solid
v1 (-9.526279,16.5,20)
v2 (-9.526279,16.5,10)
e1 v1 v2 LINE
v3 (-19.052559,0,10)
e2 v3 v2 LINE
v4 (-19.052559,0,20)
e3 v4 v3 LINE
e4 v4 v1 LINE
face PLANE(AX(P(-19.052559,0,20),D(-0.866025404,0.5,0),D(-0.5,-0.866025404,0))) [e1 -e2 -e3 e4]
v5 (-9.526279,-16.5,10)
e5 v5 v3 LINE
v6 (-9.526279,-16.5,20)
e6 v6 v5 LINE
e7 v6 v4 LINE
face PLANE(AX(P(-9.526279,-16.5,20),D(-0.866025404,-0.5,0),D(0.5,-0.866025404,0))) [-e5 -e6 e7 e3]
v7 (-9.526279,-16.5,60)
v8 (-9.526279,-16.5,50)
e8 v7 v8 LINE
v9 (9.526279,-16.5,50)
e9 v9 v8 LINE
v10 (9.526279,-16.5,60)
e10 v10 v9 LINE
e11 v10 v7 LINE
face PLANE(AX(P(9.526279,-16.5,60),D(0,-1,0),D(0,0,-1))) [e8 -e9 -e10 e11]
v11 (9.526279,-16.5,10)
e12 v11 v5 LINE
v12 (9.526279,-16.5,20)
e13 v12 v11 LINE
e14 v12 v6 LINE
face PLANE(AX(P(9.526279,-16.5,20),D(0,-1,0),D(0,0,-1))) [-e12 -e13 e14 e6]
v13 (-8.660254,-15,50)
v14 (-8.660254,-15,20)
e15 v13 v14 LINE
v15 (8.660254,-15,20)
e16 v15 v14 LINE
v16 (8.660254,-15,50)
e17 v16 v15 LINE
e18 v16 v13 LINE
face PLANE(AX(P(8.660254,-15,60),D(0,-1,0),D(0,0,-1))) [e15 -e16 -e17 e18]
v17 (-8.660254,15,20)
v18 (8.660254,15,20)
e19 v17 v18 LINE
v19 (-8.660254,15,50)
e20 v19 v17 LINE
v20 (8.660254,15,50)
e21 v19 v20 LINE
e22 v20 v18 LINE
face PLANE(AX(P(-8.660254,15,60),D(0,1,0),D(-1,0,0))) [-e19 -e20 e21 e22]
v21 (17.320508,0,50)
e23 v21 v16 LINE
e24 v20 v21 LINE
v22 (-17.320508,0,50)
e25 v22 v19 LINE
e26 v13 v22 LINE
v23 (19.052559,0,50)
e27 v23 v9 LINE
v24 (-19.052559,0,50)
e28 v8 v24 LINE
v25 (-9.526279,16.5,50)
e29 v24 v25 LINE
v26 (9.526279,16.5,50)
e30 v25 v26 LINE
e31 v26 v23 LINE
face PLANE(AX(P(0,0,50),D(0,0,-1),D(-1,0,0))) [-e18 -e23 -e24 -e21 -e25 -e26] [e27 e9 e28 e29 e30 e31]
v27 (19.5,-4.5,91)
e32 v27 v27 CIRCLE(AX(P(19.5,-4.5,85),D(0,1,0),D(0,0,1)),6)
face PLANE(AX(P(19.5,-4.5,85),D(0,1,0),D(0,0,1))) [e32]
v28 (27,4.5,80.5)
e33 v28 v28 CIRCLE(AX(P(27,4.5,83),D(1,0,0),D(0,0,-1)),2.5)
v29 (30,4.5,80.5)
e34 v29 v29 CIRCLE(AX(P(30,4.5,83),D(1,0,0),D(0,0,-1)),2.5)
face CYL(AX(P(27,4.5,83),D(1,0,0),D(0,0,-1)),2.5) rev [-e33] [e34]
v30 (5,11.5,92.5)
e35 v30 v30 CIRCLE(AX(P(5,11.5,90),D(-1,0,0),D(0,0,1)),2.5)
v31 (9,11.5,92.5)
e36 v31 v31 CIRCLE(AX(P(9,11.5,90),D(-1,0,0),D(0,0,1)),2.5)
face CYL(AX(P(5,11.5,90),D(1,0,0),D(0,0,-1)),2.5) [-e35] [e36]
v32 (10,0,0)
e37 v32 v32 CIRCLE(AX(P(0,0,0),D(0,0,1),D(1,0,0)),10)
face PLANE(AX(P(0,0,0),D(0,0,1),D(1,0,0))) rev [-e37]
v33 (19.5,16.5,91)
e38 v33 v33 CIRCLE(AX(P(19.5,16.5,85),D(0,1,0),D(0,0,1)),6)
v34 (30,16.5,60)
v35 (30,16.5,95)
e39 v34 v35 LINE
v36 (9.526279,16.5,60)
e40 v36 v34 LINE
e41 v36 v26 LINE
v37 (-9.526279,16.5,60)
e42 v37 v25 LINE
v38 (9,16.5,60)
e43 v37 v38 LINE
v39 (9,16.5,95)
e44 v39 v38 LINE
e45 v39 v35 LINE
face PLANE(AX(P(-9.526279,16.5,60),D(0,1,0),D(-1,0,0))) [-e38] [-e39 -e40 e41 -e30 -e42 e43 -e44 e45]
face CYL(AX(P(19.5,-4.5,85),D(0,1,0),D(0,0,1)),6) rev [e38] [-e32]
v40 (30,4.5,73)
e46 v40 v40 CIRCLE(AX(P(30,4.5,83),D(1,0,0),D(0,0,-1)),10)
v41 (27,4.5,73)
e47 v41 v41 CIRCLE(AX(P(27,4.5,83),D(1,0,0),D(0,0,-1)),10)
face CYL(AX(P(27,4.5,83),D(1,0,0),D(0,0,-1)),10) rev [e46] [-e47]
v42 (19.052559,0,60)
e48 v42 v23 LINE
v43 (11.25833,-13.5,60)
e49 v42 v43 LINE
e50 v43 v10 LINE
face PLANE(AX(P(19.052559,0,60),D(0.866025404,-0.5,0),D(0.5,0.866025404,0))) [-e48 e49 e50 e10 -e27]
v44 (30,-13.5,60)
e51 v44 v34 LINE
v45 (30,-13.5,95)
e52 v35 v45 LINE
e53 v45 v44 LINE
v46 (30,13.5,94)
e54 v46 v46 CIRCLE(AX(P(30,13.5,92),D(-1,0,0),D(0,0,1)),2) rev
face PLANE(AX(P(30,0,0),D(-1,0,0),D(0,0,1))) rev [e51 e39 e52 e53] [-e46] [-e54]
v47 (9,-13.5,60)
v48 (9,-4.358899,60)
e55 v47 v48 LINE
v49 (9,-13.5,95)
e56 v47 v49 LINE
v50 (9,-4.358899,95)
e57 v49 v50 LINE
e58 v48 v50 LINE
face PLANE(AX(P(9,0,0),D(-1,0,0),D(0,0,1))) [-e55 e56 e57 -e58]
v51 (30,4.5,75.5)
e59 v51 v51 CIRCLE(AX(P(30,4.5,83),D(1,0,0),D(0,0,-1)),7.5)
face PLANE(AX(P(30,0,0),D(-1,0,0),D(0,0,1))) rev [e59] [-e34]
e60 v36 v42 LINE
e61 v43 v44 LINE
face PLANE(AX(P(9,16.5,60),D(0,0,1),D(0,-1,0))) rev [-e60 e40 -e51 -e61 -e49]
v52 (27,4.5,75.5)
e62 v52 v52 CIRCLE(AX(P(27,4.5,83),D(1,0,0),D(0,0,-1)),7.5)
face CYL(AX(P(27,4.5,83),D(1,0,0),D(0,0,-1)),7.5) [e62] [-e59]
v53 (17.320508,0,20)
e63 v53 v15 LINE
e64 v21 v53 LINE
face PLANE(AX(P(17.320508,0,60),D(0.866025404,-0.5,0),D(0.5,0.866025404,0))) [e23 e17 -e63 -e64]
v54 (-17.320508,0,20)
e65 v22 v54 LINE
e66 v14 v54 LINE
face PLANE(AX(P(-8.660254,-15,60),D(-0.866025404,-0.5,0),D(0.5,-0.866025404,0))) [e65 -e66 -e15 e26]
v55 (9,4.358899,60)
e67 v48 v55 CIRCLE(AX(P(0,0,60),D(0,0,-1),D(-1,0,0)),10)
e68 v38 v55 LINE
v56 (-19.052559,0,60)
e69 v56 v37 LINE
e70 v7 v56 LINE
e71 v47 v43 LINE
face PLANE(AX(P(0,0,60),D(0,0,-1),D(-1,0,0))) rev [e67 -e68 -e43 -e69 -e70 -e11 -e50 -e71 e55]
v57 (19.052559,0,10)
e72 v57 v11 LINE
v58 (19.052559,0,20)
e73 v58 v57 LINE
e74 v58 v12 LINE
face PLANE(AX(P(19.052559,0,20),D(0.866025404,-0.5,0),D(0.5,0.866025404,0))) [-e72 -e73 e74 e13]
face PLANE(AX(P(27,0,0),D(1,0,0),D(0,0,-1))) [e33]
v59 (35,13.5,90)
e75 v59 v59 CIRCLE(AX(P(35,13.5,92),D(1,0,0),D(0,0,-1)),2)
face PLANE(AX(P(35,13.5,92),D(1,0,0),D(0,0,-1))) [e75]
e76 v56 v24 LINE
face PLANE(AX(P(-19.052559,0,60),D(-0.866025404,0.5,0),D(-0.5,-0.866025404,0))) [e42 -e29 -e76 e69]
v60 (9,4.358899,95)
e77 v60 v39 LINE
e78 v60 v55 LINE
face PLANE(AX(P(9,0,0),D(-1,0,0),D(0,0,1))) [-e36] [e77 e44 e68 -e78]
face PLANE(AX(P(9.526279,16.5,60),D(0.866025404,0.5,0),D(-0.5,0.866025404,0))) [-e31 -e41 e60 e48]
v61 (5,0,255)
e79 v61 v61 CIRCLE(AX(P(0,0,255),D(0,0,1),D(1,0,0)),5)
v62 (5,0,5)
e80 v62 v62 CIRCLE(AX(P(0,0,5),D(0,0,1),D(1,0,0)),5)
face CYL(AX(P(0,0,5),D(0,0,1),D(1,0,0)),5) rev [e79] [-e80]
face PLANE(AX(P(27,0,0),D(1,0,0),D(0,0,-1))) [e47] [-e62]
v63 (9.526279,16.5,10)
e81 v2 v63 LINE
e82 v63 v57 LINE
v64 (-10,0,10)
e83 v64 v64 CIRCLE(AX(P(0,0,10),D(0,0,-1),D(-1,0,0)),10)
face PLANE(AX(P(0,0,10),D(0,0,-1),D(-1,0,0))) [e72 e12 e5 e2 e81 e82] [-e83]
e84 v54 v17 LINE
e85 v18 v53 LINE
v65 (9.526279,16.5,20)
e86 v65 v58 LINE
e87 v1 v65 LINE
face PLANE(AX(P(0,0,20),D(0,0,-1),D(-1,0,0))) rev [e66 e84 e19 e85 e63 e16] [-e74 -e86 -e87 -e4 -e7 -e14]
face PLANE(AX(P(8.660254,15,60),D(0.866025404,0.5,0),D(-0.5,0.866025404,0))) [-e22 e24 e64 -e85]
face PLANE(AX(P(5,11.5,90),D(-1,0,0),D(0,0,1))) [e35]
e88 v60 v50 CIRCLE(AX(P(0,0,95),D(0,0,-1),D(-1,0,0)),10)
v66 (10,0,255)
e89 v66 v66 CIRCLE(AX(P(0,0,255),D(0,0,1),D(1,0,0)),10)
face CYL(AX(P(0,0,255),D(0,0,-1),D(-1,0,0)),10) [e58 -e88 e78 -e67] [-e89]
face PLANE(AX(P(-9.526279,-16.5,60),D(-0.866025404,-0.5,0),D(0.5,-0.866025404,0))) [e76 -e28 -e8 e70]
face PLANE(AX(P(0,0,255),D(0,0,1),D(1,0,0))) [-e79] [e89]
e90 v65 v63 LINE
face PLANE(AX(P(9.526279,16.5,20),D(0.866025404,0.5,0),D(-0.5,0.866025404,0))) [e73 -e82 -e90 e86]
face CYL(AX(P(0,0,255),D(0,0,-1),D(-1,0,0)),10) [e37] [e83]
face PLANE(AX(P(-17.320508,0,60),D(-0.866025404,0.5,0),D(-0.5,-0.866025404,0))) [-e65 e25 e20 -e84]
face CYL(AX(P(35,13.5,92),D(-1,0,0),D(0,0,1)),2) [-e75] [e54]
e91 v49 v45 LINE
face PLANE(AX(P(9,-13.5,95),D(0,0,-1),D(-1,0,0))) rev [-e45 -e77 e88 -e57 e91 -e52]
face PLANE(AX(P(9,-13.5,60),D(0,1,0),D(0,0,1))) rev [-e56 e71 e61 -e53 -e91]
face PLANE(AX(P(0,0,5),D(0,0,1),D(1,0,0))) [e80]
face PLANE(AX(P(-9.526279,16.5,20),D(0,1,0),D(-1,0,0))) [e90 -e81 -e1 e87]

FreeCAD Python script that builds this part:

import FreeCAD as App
import Part
import Sketcher
Q = App.Units.Quantity


def add_polygon(sketch, points):
    """Adds a closed chain of lines whose ends are joined by coincident constraints."""
    first, n = sketch.GeometryCount, len(points)
    for a, b in zip(points, points[1:] + points[:1]):
        sketch.addGeometry(Part.LineSegment(App.Vector(*a, 0), App.Vector(*b, 0)), False)
    for i in range(n):
        sketch.addConstraint(Sketcher.Constraint("Coincident", first + i, 2, first + (i + 1) % n, 1))

doc = App.newDocument("Part")
body = doc.addObject("PartDesign::Body", "Body")

# Sketch on XY plane
sketch1 = body.newObject("Sketcher::SketchObject", "Sketch")
sketch1.AttachmentSupport = (doc.getObject("XY_Plane"), [""])
sketch1.MapMode = "FlatFace"
sketch1.addGeometry(Part.Circle(App.Vector(0, 0, 0), App.Vector(0, 0, 1), 10), False)
sketch1.addConstraint([
    Sketcher.Constraint("Coincident", 0, 3, -1, 1),
    Sketcher.Constraint("Diameter", 0, Q("20 mm")),
])
pad1 = body.newObject("PartDesign::Pad", "Pad")
pad1.Profile = sketch1
pad1.Length = 255

# Sketch on XY plane
sketch2 = body.newObject("Sketcher::SketchObject", "Sketch001")
sketch2.AttachmentSupport = (doc.getObject("XY_Plane"), [""])
sketch2.MapMode = "FlatFace"
sketch2.AttachmentOffset = App.Placement(App.Vector(0, 0, 255), App.Rotation())
sketch2.addGeometry(Part.Circle(App.Vector(0, 0, 0), App.Vector(0, 0, 1), 5), False)
sketch2.addConstraint([
    Sketcher.Constraint("Coincident", 0, 3, -1, 1),
    Sketcher.Constraint("Diameter", 0, Q("10 mm")),
])
pocket1 = body.newObject("PartDesign::Pocket", "Pocket")
pocket1.Profile = sketch2
pocket1.Length = 250

# Sketch on XY plane
sketch3 = body.newObject("Sketcher::SketchObject", "Sketch002")
sketch3.AttachmentSupport = (doc.getObject("XY_Plane"), [""])
sketch3.MapMode = "FlatFace"
sketch3.AttachmentOffset = App.Placement(App.Vector(0, 0, 10), App.Rotation())
add_polygon(sketch3, [(-17, 0), (-9, 15), (9, 15), (17, 0), (9, -15), (-9, -15)])  # lines 0-5
sketch3.addGeometry(Part.Circle(App.Vector(0, 0, 0), App.Vector(0, 0, 1), 10), False)  # 6
sketch3.addConstraint([
    Sketcher.Constraint("Horizontal", 1),
    Sketcher.Constraint("Horizontal", 4),
    Sketcher.Constraint("Coincident", 6, 3, -1, 1),
    Sketcher.Constraint("Symmetric", 0, 2, 3, 2, -1, 1),
    Sketcher.Constraint("Symmetric", 2, 2, 5, 2, -1, 1),
    Sketcher.Constraint("PointOnObject", 2, 2, -1),
    Sketcher.Constraint("Parallel", 2, 5),
    Sketcher.Constraint("Vertical", 1, 2, 3, 2),
    Sketcher.Constraint("Diameter", 6, Q("20 mm")),
    Sketcher.Constraint("Angle", 0, Q("60 deg")),
    Sketcher.Constraint("DistanceY", -1, 1, 0, 2, Q("15 mm")),
    Sketcher.Constraint("DistanceX", 1, 1, 1, 2, Q("17.320508 mm")),
])
pad2 = body.newObject("PartDesign::Pad", "Pad001")
pad2.Profile = sketch3
pad2.Length = 50

# Sketch on XY plane
sketch4 = body.newObject("Sketcher::SketchObject", "Sketch003")
sketch4.AttachmentSupport = (doc.getObject("XY_Plane"), [""])
sketch4.MapMode = "FlatFace"
sketch4.AttachmentOffset = App.Placement(App.Vector(0, 0, 10), App.Rotation())
add_polygon(sketch4, [(10, -16), (-10, -16), (-19, 0), (-10, 16), (10, 16), (19, 0)])  # lines 0-5
add_polygon(sketch4, [(9, 15), (-9, 15), (-17, 0), (-9, -15), (9, -15), (17, 0)])  # lines 6-11
sketch4.addConstraint([
    Sketcher.Constraint("Horizontal", 0),
    Sketcher.Constraint("Horizontal", 3),
    Sketcher.Constraint("Horizontal", 6),
    Sketcher.Constraint("Horizontal", 9),
    Sketcher.Constraint("Symmetric", 0, 2, 3, 2, -1, 1),
    Sketcher.Constraint("Symmetric", 1, 2, 4, 2, -1, 1),
    Sketcher.Constraint("Symmetric", 6, 2, 9, 2, -1, 1),
    Sketcher.Constraint("Symmetric", 7, 2, 10, 2, -1, 1),
    Sketcher.Constraint("PointOnObject", 1, 2, -1),
    Sketcher.Constraint("PointOnObject", 7, 2, -1),
    Sketcher.Constraint("Parallel", 2, 5),
    Sketcher.Constraint("Parallel", 5, 7),
    Sketcher.Constraint("Parallel", 4, 8),
    Sketcher.Constraint("Parallel", 8, 11),
    Sketcher.Constraint("Vertical", 0, 2, 2, 2),
    Sketcher.Constraint("Angle", 1, Q("120 deg")),
    Sketcher.Constraint("DistanceY", -1, 1, 6, 2, Q("15 mm")),
    Sketcher.Constraint("DistanceY", 0, 2, 2, 2, Q("33 mm")),
    Sketcher.Constraint("DistanceX", 0, 2, 0, 1, Q("19.052559 mm")),
    Sketcher.Constraint("DistanceX", 6, 2, 6, 1, Q("17.320508 mm")),
])
pad3 = body.newObject("PartDesign::Pad", "Pad002")
pad3.Profile = sketch4
pad3.Length = 10

# Sketch on XY plane
sketch5 = body.newObject("Sketcher::SketchObject", "Sketch004")
sketch5.AttachmentSupport = (doc.getObject("XY_Plane"), [""])
sketch5.MapMode = "FlatFace"
sketch5.AttachmentOffset = App.Placement(App.Vector(0, 0, 50), App.Rotation())
add_polygon(sketch5, [(10, -16), (-10, -16), (-19, 0), (-10, 16), (10, 16), (19, 0)])  # lines 0-5
add_polygon(sketch5, [(9, 15), (-9, 15), (-17, 0), (-9, -15), (9, -15), (17, 0)])  # lines 6-11
sketch5.addConstraint([
    Sketcher.Constraint("Horizontal", 0),
    Sketcher.Constraint("Horizontal", 3),
    Sketcher.Constraint("Horizontal", 6),
    Sketcher.Constraint("Horizontal", 9),
    Sketcher.Constraint("Symmetric", 0, 2, 3, 2, -1, 1),
    Sketcher.Constraint("Symmetric", 1, 2, 4, 2, -1, 1),
    Sketcher.Constraint("Symmetric", 6, 2, 9, 2, -1, 1),
    Sketcher.Constraint("Symmetric", 7, 2, 10, 2, -1, 1),
    Sketcher.Constraint("PointOnObject", 1, 2, -1),
    Sketcher.Constraint("PointOnObject", 7, 2, -1),
    Sketcher.Constraint("Parallel", 2, 5),
    Sketcher.Constraint("Parallel", 5, 7),
    Sketcher.Constraint("Parallel", 4, 8),
    Sketcher.Constraint("Parallel", 8, 11),
    Sketcher.Constraint("Vertical", 0, 2, 2, 2),
    Sketcher.Constraint("Angle", 1, Q("120 deg")),
    Sketcher.Constraint("DistanceY", -1, 1, 6, 2, Q("15 mm")),
    Sketcher.Constraint("DistanceY", 0, 2, 2, 2, Q("33 mm")),
    Sketcher.Constraint("DistanceX", 0, 2, 0, 1, Q("19.052559 mm")),
    Sketcher.Constraint("DistanceX", 6, 2, 6, 1, Q("17.320508 mm")),
])
pad4 = body.newObject("PartDesign::Pad", "Pad003")
pad4.Profile = sketch5
pad4.Length = 10
body2 = doc.addObject("PartDesign::Body", "Body001")

# Sketch on YZ plane
sketch6 = body2.newObject("Sketcher::SketchObject", "Sketch005")
sketch6.AttachmentSupport = (doc.getObject("YZ_Plane001"), [""])
sketch6.MapMode = "FlatFace"
sketch6.AttachmentOffset = App.Placement(App.Vector(0, 0, 20), App.Rotation())
add_polygon(sketch6, [(16, 95), (-14, 95), (-14, 60), (16, 60)])  # lines 0-3
sketch6.addConstraint([
    Sketcher.Constraint("Horizontal", 0),
    Sketcher.Constraint("Vertical", 1),
    Sketcher.Constraint("Horizontal", 2),
    Sketcher.Constraint("Vertical", 3),
    Sketcher.Constraint("DistanceX", 0, 2, 0, 1, Q("30 mm")),
    Sketcher.Constraint("DistanceY", 1, 2, 1, 1, Q("35 mm")),
    Sketcher.Constraint("DistanceY", -1, 1, 0, 2, Q("95 mm")),
    Sketcher.Constraint("DistanceX", 0, 2, -1, 1, Q("13.5 mm")),
])
pad5 = body2.newObject("PartDesign::Pad", "Pad004")
pad5.Profile = sketch6
pad5.Length = 10
body.AllowCompound = True
doc.recompute()

boolean = body.newObject("PartDesign::Boolean", "Boolean")
boolean.Type = "Fuse"
boolean.addObjects([body2])

# Sketch on YZ plane
sketch7 = body.newObject("Sketcher::SketchObject", "Sketch006")
sketch7.AttachmentSupport = (doc.getObject("YZ_Plane"), [""])
sketch7.MapMode = "FlatFace"
sketch7.AttachmentOffset = App.Placement(App.Vector(0, 0, 20), App.Rotation())
add_polygon(sketch7, [(16, 60), (-14, 60), (-14, 95), (16, 95)])  # lines 0-3
sketch7.addConstraint([
    Sketcher.Constraint("Horizontal", 0),
    Sketcher.Constraint("Vertical", 1),
    Sketcher.Constraint("Horizontal", 2),
    Sketcher.Constraint("Vertical", 3),
    Sketcher.Constraint("DistanceX", 0, 2, 0, 1, Q("30 mm")),
    Sketcher.Constraint("DistanceY", 1, 1, 1, 2, Q("35 mm")),
    Sketcher.Constraint("DistanceY", -1, 1, 0, 2, Q("60 mm")),
    Sketcher.Constraint("DistanceX", 0, 2, -1, 1, Q("13.5 mm")),
])
pad6 = body.newObject("PartDesign::Pad", "Pad005")
pad6.Profile = sketch7
pad6.Length = 11
pad6.Reversed = True

# Sketch on XZ plane
sketch8 = body.newObject("Sketcher::SketchObject", "Sketch007")
sketch8.AttachmentSupport = (doc.getObject("XZ_Plane"), [""])
sketch8.MapMode = "FlatFace"
sketch8.AttachmentOffset = App.Placement(App.Vector(0, 0, -16.5), App.Rotation())
sketch8.addGeometry(Part.Circle(App.Vector(20, 85, 0), App.Vector(0, 0, 1), 6), False)
sketch8.addConstraint([
    Sketcher.Constraint("Diameter", 0, Q("12 mm")),
    Sketcher.Constraint("DistanceY", -1, 1, 0, 3, Q("85 mm")),
    Sketcher.Constraint("DistanceX", -1, 1, 0, 3, Q("19.5 mm")),
])
pocket2 = body.newObject("PartDesign::Pocket", "Pocket001")
pocket2.Profile = sketch8
pocket2.Length = 21
pocket2.Reversed = True

# Sketch on YZ plane
sketch9 = body.newObject("Sketcher::SketchObject", "Sketch008")
sketch9.AttachmentSupport = (doc.getObject("YZ_Plane"), [""])
sketch9.MapMode = "FlatFace"
sketch9.AttachmentOffset = App.Placement(App.Vector(0, 0, 9), App.Rotation())
sketch9.addGeometry(Part.Circle(App.Vector(11.5, 90, 0), App.Vector(0, 0, 1), 2.5), False)
sketch9.addConstraint([
    Sketcher.Constraint("Diameter", 0, Q("5 mm")),
    Sketcher.Constraint("DistanceY", -1, 1, 0, 3, Q("90 mm")),
    Sketcher.Constraint("DistanceX", -1, 1, 0, 3, Q("11.5 mm")),
])
pad7 = body.newObject("PartDesign::Pad", "Pad006")
pad7.Profile = sketch9
pad7.Length = 4
pad7.Reversed = True

# Sketch on YZ plane
sketch10 = body.newObject("Sketcher::SketchObject", "Sketch009")
sketch10.AttachmentSupport = (doc.getObject("YZ_Plane"), [""])
sketch10.MapMode = "FlatFace"
sketch10.AttachmentOffset = App.Placement(App.Vector(0, 0, 30), App.Rotation())
sketch10.addGeometry([
    Part.Circle(App.Vector(4.5, 83, 0), App.Vector(0, 0, 1), 10),
    Part.Circle(App.Vector(4.5, 83, 0), App.Vector(0, 0, 1), 7.5),
    Part.Circle(App.Vector(4.5, 83, 0), App.Vector(0, 0, 1), 2.5),
], False)
sketch10.addConstraint([
    Sketcher.Constraint("Coincident", 1, 3, 0, 3),
    Sketcher.Constraint("Coincident", 2, 3, 0, 3),
    Sketcher.Constraint("Diameter", 0, Q("20 mm")),
    Sketcher.Constraint("Diameter", 1, Q("15 mm")),
    Sketcher.Constraint("Diameter", 2, Q("5 mm")),
    Sketcher.Constraint("DistanceY", -1, 1, 0, 3, Q("83 mm")),
    Sketcher.Constraint("DistanceX", -1, 1, 0, 3, Q("4.5 mm")),
])
pocket3 = body.newObject("PartDesign::Pocket", "Pocket002")
pocket3.Profile = sketch10
pocket3.Length = 3

# Sketch on YZ plane
sketch11 = body.newObject("Sketcher::SketchObject", "Sketch010")
sketch11.AttachmentSupport = (doc.getObject("YZ_Plane"), [""])
sketch11.MapMode = "FlatFace"
sketch11.AttachmentOffset = App.Placement(App.Vector(0, 0, 30), App.Rotation())
sketch11.addGeometry(Part.Circle(App.Vector(13.5, 92, 0), App.Vector(0, 0, 1), 2), False)
sketch11.addConstraint([
    Sketcher.Constraint("Diameter", 0, Q("4 mm")),
    Sketcher.Constraint("DistanceY", -1, 1, 0, 3, Q("92 mm")),
    Sketcher.Constraint("DistanceX", -1, 1, 0, 3, Q("13.5 mm")),
])
pad8 = body.newObject("PartDesign::Pad", "Pad007")
pad8.Profile = sketch11
pad8.Length = 5

doc.recompute()
